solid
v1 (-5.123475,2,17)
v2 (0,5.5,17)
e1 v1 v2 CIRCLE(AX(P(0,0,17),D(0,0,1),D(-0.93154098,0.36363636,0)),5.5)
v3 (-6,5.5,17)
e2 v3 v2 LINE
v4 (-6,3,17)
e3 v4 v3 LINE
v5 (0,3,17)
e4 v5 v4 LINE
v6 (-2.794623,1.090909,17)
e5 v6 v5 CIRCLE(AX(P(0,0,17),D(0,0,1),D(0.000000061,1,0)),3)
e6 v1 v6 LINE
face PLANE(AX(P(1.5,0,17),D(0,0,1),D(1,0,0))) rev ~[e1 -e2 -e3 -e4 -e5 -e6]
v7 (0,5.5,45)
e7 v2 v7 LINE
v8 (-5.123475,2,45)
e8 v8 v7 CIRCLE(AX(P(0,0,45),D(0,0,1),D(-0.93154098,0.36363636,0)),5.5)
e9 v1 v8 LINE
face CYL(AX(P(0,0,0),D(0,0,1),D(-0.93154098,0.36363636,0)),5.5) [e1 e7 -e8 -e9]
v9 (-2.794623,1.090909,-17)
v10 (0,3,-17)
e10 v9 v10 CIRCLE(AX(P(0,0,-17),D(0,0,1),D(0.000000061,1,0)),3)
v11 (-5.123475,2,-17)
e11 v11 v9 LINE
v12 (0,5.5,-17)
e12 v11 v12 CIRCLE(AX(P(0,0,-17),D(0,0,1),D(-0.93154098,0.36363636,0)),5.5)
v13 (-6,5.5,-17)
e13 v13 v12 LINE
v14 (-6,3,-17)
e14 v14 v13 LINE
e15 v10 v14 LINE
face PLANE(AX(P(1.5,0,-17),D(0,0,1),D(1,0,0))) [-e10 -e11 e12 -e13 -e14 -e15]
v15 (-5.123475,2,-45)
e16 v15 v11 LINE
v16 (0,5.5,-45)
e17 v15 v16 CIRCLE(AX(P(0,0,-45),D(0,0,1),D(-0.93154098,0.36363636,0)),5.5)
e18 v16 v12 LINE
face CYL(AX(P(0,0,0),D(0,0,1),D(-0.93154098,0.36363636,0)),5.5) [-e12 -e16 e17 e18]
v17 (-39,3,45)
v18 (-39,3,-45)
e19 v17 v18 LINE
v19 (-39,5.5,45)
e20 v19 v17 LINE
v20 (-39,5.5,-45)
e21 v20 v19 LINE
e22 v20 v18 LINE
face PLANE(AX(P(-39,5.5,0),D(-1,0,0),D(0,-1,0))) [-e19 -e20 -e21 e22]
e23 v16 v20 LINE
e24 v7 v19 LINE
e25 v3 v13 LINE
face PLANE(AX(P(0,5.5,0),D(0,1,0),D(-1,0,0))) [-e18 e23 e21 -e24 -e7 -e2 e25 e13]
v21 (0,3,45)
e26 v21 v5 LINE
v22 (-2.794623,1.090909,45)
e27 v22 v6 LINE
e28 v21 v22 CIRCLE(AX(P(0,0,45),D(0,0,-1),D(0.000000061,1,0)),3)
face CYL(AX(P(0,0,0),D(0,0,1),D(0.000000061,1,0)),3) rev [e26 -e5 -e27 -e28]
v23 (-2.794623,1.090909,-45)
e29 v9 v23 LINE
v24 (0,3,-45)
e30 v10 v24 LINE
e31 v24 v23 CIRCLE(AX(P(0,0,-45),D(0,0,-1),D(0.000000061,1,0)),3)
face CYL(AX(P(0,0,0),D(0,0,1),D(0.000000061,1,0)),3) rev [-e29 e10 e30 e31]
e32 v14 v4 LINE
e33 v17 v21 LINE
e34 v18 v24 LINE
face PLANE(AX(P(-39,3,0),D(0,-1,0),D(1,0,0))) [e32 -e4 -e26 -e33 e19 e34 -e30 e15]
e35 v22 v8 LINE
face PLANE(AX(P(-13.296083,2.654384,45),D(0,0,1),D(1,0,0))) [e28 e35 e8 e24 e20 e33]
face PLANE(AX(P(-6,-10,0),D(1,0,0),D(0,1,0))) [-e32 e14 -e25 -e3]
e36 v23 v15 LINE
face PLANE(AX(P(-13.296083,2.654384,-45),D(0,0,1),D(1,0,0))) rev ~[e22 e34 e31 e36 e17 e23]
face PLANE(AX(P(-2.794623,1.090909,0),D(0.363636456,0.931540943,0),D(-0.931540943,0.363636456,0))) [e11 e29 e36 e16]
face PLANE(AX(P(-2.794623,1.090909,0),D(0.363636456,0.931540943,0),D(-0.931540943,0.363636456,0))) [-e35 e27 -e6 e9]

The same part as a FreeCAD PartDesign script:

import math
import FreeCAD as App
import Part
import Sketcher
Q = App.Units.Quantity


def add_polygon(sketch, points):
    """Adds a closed chain of lines whose ends are joined by coincident constraints."""
    first, n = sketch.GeometryCount, len(points)
    for a, b in zip(points, points[1:] + points[:1]):
        sketch.addGeometry(Part.LineSegment(App.Vector(*a, 0), App.Vector(*b, 0)), False)
    for i in range(n):
        sketch.addConstraint(Sketcher.Constraint("Coincident", first + i, 2, first + (i + 1) % n, 1))

doc = App.newDocument("Part")
body = doc.addObject("PartDesign::Body", "Body")

sketch1 = doc.addObject("Sketcher::SketchObject", "Sketch")
body.addObject(sketch1)
sketch1.AttachmentSupport = (doc.XY_Plane, [""])
sketch1.MapMode = "FlatFace"
sketch1.addGeometry([
    Part.LineSegment(App.Vector(-2.8, 1.1, 0), App.Vector(-5.1, 2, 0)),
    Part.ArcOfCircle(Part.Circle(App.Vector(0, 0, 0), App.Vector(0, 0, 1), 5.5), math.radians(159), math.radians(450)),
    Part.LineSegment(App.Vector(0, 5.5, 0), App.Vector(-39, 5.5, 0)),
    Part.LineSegment(App.Vector(-39, 5.5, 0), App.Vector(-39, 3, 0)),
    Part.LineSegment(App.Vector(-39, 3, 0), App.Vector(0, 3, 0)),
    Part.ArcOfCircle(Part.Circle(App.Vector(0, 0, 0), App.Vector(0, 0, 1), 3), math.radians(159), math.radians(450)),
], False)
sketch1.addConstraint([
    Sketcher.Constraint("Coincident", 0, 2, 1, 1),
    Sketcher.Constraint("Tangent", 1, 2, 2, 1),
    Sketcher.Constraint("Coincident", 2, 2, 3, 1),
    Sketcher.Constraint("Coincident", 3, 2, 4, 1),
    Sketcher.Constraint("Tangent", 4, 2, 5, 2),
    Sketcher.Constraint("Coincident", 5, 1, 0, 1),
    Sketcher.Constraint("Horizontal", 2),
    Sketcher.Constraint("Vertical", 3),
    Sketcher.Constraint("Horizontal", 4),
    Sketcher.Constraint("Coincident", 1, 3, -1, 1),
    Sketcher.Constraint("Coincident", 5, 3, -1, 1),
    Sketcher.Constraint("Radius", 5, Q("3 mm")),
    Sketcher.Constraint("Radius", 1, Q("5.5 mm")),
    Sketcher.Constraint("DistanceX", 2, 2, 2, 1, Q("39 mm")),
    Sketcher.Constraint("DistanceY", -1, 1, 0, 2, Q("2 mm")),
    Sketcher.Constraint("DistanceY", -1, 1, 5, 1, Q("1.090909 mm")),
])
pad1 = doc.addObject("PartDesign::Pad", "Pad")
body.addObject(pad1)
pad1.Profile = sketch1
pad1.Length = 90
pad1.Midplane = True

sketch2 = doc.addObject("Sketcher::SketchObject", "Sketch001")
body.addObject(sketch2)
sketch2.AttachmentSupport = (doc.XY_Plane, [""])
sketch2.MapMode = "FlatFace"
add_polygon(sketch2, [(-6, 10), (-6, -10), (9, -10), (9, 10)])
sketch2.addConstraint([
    Sketcher.Constraint("Vertical", 0),
    Sketcher.Constraint("Horizontal", 1),
    Sketcher.Constraint("Vertical", 2),
    Sketcher.Constraint("Horizontal", 3),
    Sketcher.Constraint("DistanceX", 1, 1, 1, 2, Q("15 mm")),
    Sketcher.Constraint("DistanceY", 0, 2, 0, 1, Q("20 mm")),
    Sketcher.Constraint("DistanceX", 0, 2, -1, 1, Q("6 mm")),
    Sketcher.Constraint("DistanceY", 0, 2, -1, 1, Q("10 mm")),
])
pocket1 = doc.addObject("PartDesign::Pocket", "Pocket")
body.addObject(pocket1)
pocket1.Profile = sketch2
pocket1.Length = 34
pocket1.Midplane = True

doc.recompute()
